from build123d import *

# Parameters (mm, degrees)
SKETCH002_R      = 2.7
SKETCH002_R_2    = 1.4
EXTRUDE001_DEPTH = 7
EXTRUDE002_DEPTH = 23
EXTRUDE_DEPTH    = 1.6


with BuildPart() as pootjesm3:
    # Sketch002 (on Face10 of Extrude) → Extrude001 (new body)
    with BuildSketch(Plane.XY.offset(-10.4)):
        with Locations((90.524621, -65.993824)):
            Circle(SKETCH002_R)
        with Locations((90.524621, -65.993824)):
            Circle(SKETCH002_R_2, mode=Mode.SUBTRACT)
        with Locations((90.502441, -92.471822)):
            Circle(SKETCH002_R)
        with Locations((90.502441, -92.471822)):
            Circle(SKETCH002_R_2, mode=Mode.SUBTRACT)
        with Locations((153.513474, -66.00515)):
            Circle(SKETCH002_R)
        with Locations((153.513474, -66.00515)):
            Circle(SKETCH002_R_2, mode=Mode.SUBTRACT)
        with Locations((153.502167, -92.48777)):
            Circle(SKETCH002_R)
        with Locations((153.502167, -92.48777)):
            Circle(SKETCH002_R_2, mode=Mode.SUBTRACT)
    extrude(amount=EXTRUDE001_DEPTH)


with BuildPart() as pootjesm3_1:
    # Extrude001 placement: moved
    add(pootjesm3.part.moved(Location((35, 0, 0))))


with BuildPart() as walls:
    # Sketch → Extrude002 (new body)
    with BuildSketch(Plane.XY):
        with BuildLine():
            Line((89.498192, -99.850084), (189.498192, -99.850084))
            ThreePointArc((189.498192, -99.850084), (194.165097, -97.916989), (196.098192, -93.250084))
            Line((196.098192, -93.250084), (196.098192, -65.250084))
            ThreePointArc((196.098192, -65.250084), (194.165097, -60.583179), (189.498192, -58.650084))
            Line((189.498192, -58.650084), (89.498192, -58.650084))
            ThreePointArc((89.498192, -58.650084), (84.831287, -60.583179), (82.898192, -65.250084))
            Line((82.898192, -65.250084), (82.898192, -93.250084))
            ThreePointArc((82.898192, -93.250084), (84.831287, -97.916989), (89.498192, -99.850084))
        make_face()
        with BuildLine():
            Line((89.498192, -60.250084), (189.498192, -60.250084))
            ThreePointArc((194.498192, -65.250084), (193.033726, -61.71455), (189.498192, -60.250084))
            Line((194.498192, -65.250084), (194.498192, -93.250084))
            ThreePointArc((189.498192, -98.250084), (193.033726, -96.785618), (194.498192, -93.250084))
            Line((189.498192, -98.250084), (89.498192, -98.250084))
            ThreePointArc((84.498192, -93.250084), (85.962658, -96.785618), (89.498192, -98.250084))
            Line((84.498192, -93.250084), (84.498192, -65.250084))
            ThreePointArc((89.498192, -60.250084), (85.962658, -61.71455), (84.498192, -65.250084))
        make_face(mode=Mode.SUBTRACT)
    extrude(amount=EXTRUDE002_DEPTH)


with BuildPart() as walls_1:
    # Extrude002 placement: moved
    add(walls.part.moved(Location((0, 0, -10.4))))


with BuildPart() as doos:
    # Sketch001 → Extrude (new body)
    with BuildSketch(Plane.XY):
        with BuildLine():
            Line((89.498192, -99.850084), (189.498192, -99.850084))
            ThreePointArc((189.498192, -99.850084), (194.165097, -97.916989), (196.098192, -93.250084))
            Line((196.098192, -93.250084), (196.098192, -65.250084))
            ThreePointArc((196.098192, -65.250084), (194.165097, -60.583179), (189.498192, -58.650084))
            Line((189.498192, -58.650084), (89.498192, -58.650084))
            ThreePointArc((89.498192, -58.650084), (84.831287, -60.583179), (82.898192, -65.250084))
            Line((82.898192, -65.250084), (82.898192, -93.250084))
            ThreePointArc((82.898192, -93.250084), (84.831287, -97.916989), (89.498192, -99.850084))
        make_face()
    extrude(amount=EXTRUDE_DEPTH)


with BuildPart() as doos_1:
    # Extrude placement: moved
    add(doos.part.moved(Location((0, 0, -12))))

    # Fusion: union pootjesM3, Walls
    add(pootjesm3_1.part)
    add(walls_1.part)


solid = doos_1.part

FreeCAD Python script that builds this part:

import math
import FreeCAD as App
import Part
import Sketcher

doc = App.newDocument("Part")
body = doc.addObject("PartDesign::Body", "Body")
body.AllowCompound = True

# Sketch on XY plane
sketch1 = body.newObject("Sketcher::SketchObject", "Sketch")
sketch1.AttachmentSupport = (doc.getObject("XY_Plane"), [""])
sketch1.MapMode = "FlatFace"
sketch1.AttachmentOffset = App.Placement(App.Vector(0, 0, -10.4), App.Rotation())
sketch1.addGeometry([
    Part.Circle(App.Vector(90.5, -66, 0), App.Vector(0, 0, 1), 2.7),  # 0
    Part.Circle(App.Vector(90.5, -66, 0), App.Vector(0, 0, 1), 1.4),  # 1
    Part.Circle(App.Vector(90.5, -92.5, 0), App.Vector(0, 0, 1), 2.7),  # 2
    Part.Circle(App.Vector(90.5, -92.5, 0), App.Vector(0, 0, 1), 1.4),  # 3
    Part.Circle(App.Vector(153.5, -66, 0), App.Vector(0, 0, 1), 2.7),  # 4
    Part.Circle(App.Vector(153.5, -66, 0), App.Vector(0, 0, 1), 1.4),  # 5
    Part.Circle(App.Vector(153.5, -92.5, 0), App.Vector(0, 0, 1), 2.7),  # 6
    Part.Circle(App.Vector(153.5, -92.5, 0), App.Vector(0, 0, 1), 1.4),  # 7
], False)
sketch1.addConstraint([
    Sketcher.Constraint("Coincident", 1, 3, 0, 3),
    Sketcher.Constraint("Coincident", 3, 3, 2, 3),
    Sketcher.Constraint("Coincident", 5, 3, 4, 3),
    Sketcher.Constraint("Coincident", 7, 3, 6, 3),
    Sketcher.Constraint("Equal", 0, 2),
    Sketcher.Constraint("Equal", 1, 3),
    Sketcher.Constraint("Equal", 2, 4),
    Sketcher.Constraint("Equal", 3, 5),
    Sketcher.Constraint("Equal", 4, 6),
    Sketcher.Constraint("Equal", 5, 7),
    Sketcher.Constraint("Diameter", 0, 5.4),
    Sketcher.Constraint("Diameter", 1, 2.8),
    Sketcher.Constraint("DistanceX", -1, 1, 0, 3, 90.524621),
    Sketcher.Constraint("DistanceX", -1, 1, 2, 3, 90.502441),
    Sketcher.Constraint("DistanceY", 4, 3, -1, 1, 66.00515),
    Sketcher.Constraint("DistanceY", 6, 3, -1, 1, 92.48777),
    Sketcher.Constraint("DistanceY", 0, 3, -1, 1, 65.993824),
    Sketcher.Constraint("DistanceY", 2, 3, -1, 1, 92.471822),
    Sketcher.Constraint("DistanceX", -1, 1, 4, 3, 153.513474),
    Sketcher.Constraint("DistanceX", -1, 1, 6, 3, 153.502167),
])
pad1 = body.newObject("PartDesign::Pad", "Pad")
pad1.Profile = sketch1
pad1.Length = 7
body2 = doc.addObject("PartDesign::Body", "Body001")
body2.AllowCompound = True
doc.recompute()

body.Placement = App.Placement(App.Vector(35, 0, 0), App.Rotation(App.Vector(0, 0, 1), 0))
boolean = body2.newObject("PartDesign::Boolean", "Boolean")
boolean.Type = "Fuse"
boolean.addObjects([body])
body3 = doc.addObject("PartDesign::Body", "Body002")

# Sketch on XY plane
sketch2 = body3.newObject("Sketcher::SketchObject", "Sketch001")
sketch2.AttachmentSupport = (doc.getObject("XY_Plane002"), [""])
sketch2.MapMode = "FlatFace"
sketch2.addGeometry([
    Part.LineSegment(App.Vector(89.5, -99.9, 0), App.Vector(189.5, -99.9, 0)),  # 0
    Part.ArcOfCircle(Part.Circle(App.Vector(189.5, -93.3, 0), App.Vector(0, 0, 1), 6.6), math.radians(-90), math.radians(0)),  # 1
    Part.LineSegment(App.Vector(196.1, -93.3, 0), App.Vector(196.1, -65.3, 0)),  # 2
    Part.ArcOfCircle(Part.Circle(App.Vector(189.5, -65.3, 0), App.Vector(0, 0, 1), 6.6), math.radians(0), math.radians(90)),  # 3
    Part.LineSegment(App.Vector(189.5, -58.7, 0), App.Vector(89.5, -58.7, 0)),  # 4
    Part.ArcOfCircle(Part.Circle(App.Vector(89.5, -65.3, 0), App.Vector(0, 0, 1), 6.6), math.radians(90), math.radians(180)),  # 5
    Part.LineSegment(App.Vector(82.9, -65.3, 0), App.Vector(82.9, -93.3, 0)),  # 6
    Part.ArcOfCircle(Part.Circle(App.Vector(89.5, -93.3, 0), App.Vector(0, 0, 1), 6.6), math.radians(180), math.radians(270)),  # 7
    Part.ArcOfCircle(Part.Circle(App.Vector(89.5, -65.3, 0), App.Vector(0, 0, 1), 5), math.radians(90), math.radians(180)),  # 8
    Part.LineSegment(App.Vector(89.5, -60.3, 0), App.Vector(189.5, -60.3, 0)),  # 9
    Part.ArcOfCircle(Part.Circle(App.Vector(189.5, -65.3, 0), App.Vector(0, 0, 1), 5), math.radians(0), math.radians(90)),  # 10
    Part.LineSegment(App.Vector(194.5, -65.3, 0), App.Vector(194.5, -93.3, 0)),  # 11
    Part.ArcOfCircle(Part.Circle(App.Vector(189.5, -93.3, 0), App.Vector(0, 0, 1), 5), math.radians(-90), math.radians(0)),  # 12
    Part.LineSegment(App.Vector(189.5, -98.3, 0), App.Vector(89.5, -98.3, 0)),  # 13
    Part.ArcOfCircle(Part.Circle(App.Vector(89.5, -93.3, 0), App.Vector(0, 0, 1), 5), math.radians(180), math.radians(270)),  # 14
    Part.LineSegment(App.Vector(84.5, -93.3, 0), App.Vector(84.5, -65.3, 0)),  # 15
], False)
sketch2.addConstraint([
    Sketcher.Constraint("Tangent", 0, 2, 1, 1),
    Sketcher.Constraint("Tangent", 1, 2, 2, 1),
    Sketcher.Constraint("Tangent", 2, 2, 3, 1),
    Sketcher.Constraint("Tangent", 3, 2, 4, 1),
    Sketcher.Constraint("Tangent", 4, 2, 5, 1),
    Sketcher.Constraint("Tangent", 5, 2, 6, 1),
    Sketcher.Constraint("Tangent", 6, 2, 7, 1),
    Sketcher.Constraint("Tangent", 7, 2, 0, 1),
    Sketcher.Constraint("Tangent", 8, 1, 9, 1),
    Sketcher.Constraint("Tangent", 9, 2, 10, 2),
    Sketcher.Constraint("Tangent", 10, 1, 11, 1),
    Sketcher.Constraint("Tangent", 11, 2, 12, 2),
    Sketcher.Constraint("Tangent", 12, 1, 13, 1),
    Sketcher.Constraint("Tangent", 13, 2, 14, 2),
    Sketcher.Constraint("Tangent", 14, 1, 15, 1),
    Sketcher.Constraint("Tangent", 15, 2, 8, 2),
    Sketcher.Constraint("Horizontal", 0),
    Sketcher.Constraint("Vertical", 2),
    Sketcher.Constraint("Horizontal", 4),
    Sketcher.Constraint("Vertical", 6),
    Sketcher.Constraint("Horizontal", 9),
    Sketcher.Constraint("Vertical", 11),
    Sketcher.Constraint("Horizontal", 13),
    Sketcher.Constraint("Vertical", 15),
    Sketcher.Constraint("Coincident", 8, 3, 5, 3),
    Sketcher.Constraint("Coincident", 10, 3, 3, 3),
    Sketcher.Constraint("Coincident", 12, 3, 1, 3),
    Sketcher.Constraint("Equal", 1, 3),
    Sketcher.Constraint("Equal", 3, 5),
    Sketcher.Constraint("Equal", 5, 7),
    Sketcher.Constraint("Equal", 12, 14),
    Sketcher.Constraint("Radius", 8, 5.0),
    Sketcher.Constraint("Radius", 1, 6.599999),
    Sketcher.Constraint("DistanceX", 0, 1, 0, 2, 100.0),
    Sketcher.Constraint("DistanceY", 2, 1, 2, 2, 28.0),
    Sketcher.Constraint("DistanceX", -1, 1, 5, 3, 89.498191),
    Sketcher.Constraint("DistanceY", 1, 3, -1, 1, 93.250085),
])
pad2 = body3.newObject("PartDesign::Pad", "Pad001")
pad2.Profile = sketch2
pad2.Length = 23
body4 = doc.addObject("PartDesign::Body", "Body003")
doc.recompute()

body3.Placement = App.Placement(App.Vector(0, 0, -10.4), App.Rotation(App.Vector(0, 0, 1), 0))
boolean2 = body4.newObject("PartDesign::Boolean", "Boolean001")
boolean2.Type = "Fuse"
boolean2.addObjects([body3])
body5 = doc.addObject("PartDesign::Body", "Body004")

# Sketch on XY plane
sketch3 = body5.newObject("Sketcher::SketchObject", "Sketch002")
sketch3.AttachmentSupport = (doc.getObject("XY_Plane004"), [""])
sketch3.MapMode = "FlatFace"
sketch3.addGeometry([
    Part.LineSegment(App.Vector(89, -100, 0), App.Vector(189, -100, 0)),  # 0
    Part.ArcOfCircle(Part.Circle(App.Vector(189, -93, 0), App.Vector(0, 0, 1), 7), math.radians(-90), math.radians(0)),  # 1
    Part.LineSegment(App.Vector(196, -93, 0), App.Vector(196, -65, 0)),  # 2
    Part.ArcOfCircle(Part.Circle(App.Vector(189, -65, 0), App.Vector(0, 0, 1), 7), math.radians(0), math.radians(90)),  # 3
    Part.LineSegment(App.Vector(189, -59, 0), App.Vector(89, -59, 0)),  # 4
    Part.ArcOfCircle(Part.Circle(App.Vector(89, -65, 0), App.Vector(0, 0, 1), 7), math.radians(90), math.radians(180)),  # 5
    Part.LineSegment(App.Vector(83, -65, 0), App.Vector(83, -93, 0)),  # 6
    Part.ArcOfCircle(Part.Circle(App.Vector(89, -93, 0), App.Vector(0, 0, 1), 7), math.radians(180), math.radians(270)),  # 7
], False)
sketch3.addConstraint([
    Sketcher.Constraint("Tangent", 0, 2, 1, 1),
    Sketcher.Constraint("Tangent", 1, 2, 2, 1),
    Sketcher.Constraint("Tangent", 2, 2, 3, 1),
    Sketcher.Constraint("Tangent", 3, 2, 4, 1),
    Sketcher.Constraint("Tangent", 4, 2, 5, 1),
    Sketcher.Constraint("Tangent", 5, 2, 6, 1),
    Sketcher.Constraint("Tangent", 6, 2, 7, 1),
    Sketcher.Constraint("Tangent", 7, 2, 0, 1),
    Sketcher.Constraint("Horizontal", 0),
    Sketcher.Constraint("Vertical", 2),
    Sketcher.Constraint("Horizontal", 4),
    Sketcher.Constraint("Vertical", 6),
    Sketcher.Constraint("Equal", 1, 3),
    Sketcher.Constraint("Equal", 3, 5),
    Sketcher.Constraint("Equal", 5, 7),
    Sketcher.Constraint("Radius", 1, 6.599999),
    Sketcher.Constraint("DistanceX", 0, 1, 0, 2, 100.0),
    Sketcher.Constraint("DistanceY", 2, 1, 2, 2, 28.0),
    Sketcher.Constraint("DistanceX", -1, 1, 5, 3, 89.498191),
    Sketcher.Constraint("DistanceY", 1, 3, -1, 1, 93.250085),
])
pad3 = body5.newObject("PartDesign::Pad", "Pad002")
pad3.Profile = sketch3
pad3.Length = 1.6
body6 = doc.addObject("PartDesign::Body", "Body005")
doc.recompute()

body5.Placement = App.Placement(App.Vector(0, 0, -12), App.Rotation(App.Vector(0, 0, 1), 0))
boolean3 = body6.newObject("PartDesign::Boolean", "Boolean002")
boolean3.Type = "Fuse"
boolean3.addObjects([body5])
doc.recompute()

boolean4 = body6.newObject("PartDesign::Boolean", "Boolean003")
boolean4.Type = "Fuse"
boolean4.addObjects([body2])
doc.recompute()

boolean5 = body6.newObject("PartDesign::Boolean", "Boolean004")
boolean5.Type = "Fuse"
boolean5.addObjects([body4])

doc.recompute()
